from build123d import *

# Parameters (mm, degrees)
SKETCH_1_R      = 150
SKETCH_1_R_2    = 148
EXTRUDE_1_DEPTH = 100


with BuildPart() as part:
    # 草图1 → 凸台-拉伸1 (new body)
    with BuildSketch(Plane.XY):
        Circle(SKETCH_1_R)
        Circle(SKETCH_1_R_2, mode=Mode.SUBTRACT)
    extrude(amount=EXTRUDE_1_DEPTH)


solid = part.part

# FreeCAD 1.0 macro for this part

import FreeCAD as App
import Part
import Sketcher
Q = App.Units.Quantity

doc = App.newDocument("Part")
params = doc.addObject("Spreadsheet::Sheet", "Params")
for row, (alias, value) in enumerate([
    ("sketch1_diameter", "300 mm"),
    ("sketch1_diameter2", "296 mm"),
    ("pad1_length", "100 mm"),
], start=1):
    params.set(f"A{row}", alias)
    params.set(f"B{row}", "=" + value)
    params.setAlias(f"B{row}", alias)

body = doc.addObject("PartDesign::Body", "Body")

# Sketch on XY plane
sketch1 = body.newObject("Sketcher::SketchObject", "Sketch")
sketch1.AttachmentSupport = (doc.getObject("XY_Plane"), [""])
sketch1.MapMode = "FlatFace"
sketch1.addGeometry([
    Part.Circle(App.Vector(0, 0, 0), App.Vector(0, 0, 1), 150),
    Part.Circle(App.Vector(0, 0, 0), App.Vector(0, 0, 1), 148),
], False)
sketch1.addConstraint([
    Sketcher.Constraint("Coincident", 0, 3, -1, 1),
    Sketcher.Constraint("Coincident", 1, 3, -1, 1),
    Sketcher.Constraint("Diameter", 0, Q("300 mm")),
    Sketcher.Constraint("Diameter", 1, Q("296 mm")),
])
sketch1.setExpression("Constraints[2]", "Params.sketch1_diameter")
sketch1.setExpression("Constraints[3]", "Params.sketch1_diameter2")
pad1 = body.newObject("PartDesign::Pad", "Pad")
pad1.Profile = sketch1
pad1.setExpression("Length", "Params.pad1_length")

doc.recompute()
